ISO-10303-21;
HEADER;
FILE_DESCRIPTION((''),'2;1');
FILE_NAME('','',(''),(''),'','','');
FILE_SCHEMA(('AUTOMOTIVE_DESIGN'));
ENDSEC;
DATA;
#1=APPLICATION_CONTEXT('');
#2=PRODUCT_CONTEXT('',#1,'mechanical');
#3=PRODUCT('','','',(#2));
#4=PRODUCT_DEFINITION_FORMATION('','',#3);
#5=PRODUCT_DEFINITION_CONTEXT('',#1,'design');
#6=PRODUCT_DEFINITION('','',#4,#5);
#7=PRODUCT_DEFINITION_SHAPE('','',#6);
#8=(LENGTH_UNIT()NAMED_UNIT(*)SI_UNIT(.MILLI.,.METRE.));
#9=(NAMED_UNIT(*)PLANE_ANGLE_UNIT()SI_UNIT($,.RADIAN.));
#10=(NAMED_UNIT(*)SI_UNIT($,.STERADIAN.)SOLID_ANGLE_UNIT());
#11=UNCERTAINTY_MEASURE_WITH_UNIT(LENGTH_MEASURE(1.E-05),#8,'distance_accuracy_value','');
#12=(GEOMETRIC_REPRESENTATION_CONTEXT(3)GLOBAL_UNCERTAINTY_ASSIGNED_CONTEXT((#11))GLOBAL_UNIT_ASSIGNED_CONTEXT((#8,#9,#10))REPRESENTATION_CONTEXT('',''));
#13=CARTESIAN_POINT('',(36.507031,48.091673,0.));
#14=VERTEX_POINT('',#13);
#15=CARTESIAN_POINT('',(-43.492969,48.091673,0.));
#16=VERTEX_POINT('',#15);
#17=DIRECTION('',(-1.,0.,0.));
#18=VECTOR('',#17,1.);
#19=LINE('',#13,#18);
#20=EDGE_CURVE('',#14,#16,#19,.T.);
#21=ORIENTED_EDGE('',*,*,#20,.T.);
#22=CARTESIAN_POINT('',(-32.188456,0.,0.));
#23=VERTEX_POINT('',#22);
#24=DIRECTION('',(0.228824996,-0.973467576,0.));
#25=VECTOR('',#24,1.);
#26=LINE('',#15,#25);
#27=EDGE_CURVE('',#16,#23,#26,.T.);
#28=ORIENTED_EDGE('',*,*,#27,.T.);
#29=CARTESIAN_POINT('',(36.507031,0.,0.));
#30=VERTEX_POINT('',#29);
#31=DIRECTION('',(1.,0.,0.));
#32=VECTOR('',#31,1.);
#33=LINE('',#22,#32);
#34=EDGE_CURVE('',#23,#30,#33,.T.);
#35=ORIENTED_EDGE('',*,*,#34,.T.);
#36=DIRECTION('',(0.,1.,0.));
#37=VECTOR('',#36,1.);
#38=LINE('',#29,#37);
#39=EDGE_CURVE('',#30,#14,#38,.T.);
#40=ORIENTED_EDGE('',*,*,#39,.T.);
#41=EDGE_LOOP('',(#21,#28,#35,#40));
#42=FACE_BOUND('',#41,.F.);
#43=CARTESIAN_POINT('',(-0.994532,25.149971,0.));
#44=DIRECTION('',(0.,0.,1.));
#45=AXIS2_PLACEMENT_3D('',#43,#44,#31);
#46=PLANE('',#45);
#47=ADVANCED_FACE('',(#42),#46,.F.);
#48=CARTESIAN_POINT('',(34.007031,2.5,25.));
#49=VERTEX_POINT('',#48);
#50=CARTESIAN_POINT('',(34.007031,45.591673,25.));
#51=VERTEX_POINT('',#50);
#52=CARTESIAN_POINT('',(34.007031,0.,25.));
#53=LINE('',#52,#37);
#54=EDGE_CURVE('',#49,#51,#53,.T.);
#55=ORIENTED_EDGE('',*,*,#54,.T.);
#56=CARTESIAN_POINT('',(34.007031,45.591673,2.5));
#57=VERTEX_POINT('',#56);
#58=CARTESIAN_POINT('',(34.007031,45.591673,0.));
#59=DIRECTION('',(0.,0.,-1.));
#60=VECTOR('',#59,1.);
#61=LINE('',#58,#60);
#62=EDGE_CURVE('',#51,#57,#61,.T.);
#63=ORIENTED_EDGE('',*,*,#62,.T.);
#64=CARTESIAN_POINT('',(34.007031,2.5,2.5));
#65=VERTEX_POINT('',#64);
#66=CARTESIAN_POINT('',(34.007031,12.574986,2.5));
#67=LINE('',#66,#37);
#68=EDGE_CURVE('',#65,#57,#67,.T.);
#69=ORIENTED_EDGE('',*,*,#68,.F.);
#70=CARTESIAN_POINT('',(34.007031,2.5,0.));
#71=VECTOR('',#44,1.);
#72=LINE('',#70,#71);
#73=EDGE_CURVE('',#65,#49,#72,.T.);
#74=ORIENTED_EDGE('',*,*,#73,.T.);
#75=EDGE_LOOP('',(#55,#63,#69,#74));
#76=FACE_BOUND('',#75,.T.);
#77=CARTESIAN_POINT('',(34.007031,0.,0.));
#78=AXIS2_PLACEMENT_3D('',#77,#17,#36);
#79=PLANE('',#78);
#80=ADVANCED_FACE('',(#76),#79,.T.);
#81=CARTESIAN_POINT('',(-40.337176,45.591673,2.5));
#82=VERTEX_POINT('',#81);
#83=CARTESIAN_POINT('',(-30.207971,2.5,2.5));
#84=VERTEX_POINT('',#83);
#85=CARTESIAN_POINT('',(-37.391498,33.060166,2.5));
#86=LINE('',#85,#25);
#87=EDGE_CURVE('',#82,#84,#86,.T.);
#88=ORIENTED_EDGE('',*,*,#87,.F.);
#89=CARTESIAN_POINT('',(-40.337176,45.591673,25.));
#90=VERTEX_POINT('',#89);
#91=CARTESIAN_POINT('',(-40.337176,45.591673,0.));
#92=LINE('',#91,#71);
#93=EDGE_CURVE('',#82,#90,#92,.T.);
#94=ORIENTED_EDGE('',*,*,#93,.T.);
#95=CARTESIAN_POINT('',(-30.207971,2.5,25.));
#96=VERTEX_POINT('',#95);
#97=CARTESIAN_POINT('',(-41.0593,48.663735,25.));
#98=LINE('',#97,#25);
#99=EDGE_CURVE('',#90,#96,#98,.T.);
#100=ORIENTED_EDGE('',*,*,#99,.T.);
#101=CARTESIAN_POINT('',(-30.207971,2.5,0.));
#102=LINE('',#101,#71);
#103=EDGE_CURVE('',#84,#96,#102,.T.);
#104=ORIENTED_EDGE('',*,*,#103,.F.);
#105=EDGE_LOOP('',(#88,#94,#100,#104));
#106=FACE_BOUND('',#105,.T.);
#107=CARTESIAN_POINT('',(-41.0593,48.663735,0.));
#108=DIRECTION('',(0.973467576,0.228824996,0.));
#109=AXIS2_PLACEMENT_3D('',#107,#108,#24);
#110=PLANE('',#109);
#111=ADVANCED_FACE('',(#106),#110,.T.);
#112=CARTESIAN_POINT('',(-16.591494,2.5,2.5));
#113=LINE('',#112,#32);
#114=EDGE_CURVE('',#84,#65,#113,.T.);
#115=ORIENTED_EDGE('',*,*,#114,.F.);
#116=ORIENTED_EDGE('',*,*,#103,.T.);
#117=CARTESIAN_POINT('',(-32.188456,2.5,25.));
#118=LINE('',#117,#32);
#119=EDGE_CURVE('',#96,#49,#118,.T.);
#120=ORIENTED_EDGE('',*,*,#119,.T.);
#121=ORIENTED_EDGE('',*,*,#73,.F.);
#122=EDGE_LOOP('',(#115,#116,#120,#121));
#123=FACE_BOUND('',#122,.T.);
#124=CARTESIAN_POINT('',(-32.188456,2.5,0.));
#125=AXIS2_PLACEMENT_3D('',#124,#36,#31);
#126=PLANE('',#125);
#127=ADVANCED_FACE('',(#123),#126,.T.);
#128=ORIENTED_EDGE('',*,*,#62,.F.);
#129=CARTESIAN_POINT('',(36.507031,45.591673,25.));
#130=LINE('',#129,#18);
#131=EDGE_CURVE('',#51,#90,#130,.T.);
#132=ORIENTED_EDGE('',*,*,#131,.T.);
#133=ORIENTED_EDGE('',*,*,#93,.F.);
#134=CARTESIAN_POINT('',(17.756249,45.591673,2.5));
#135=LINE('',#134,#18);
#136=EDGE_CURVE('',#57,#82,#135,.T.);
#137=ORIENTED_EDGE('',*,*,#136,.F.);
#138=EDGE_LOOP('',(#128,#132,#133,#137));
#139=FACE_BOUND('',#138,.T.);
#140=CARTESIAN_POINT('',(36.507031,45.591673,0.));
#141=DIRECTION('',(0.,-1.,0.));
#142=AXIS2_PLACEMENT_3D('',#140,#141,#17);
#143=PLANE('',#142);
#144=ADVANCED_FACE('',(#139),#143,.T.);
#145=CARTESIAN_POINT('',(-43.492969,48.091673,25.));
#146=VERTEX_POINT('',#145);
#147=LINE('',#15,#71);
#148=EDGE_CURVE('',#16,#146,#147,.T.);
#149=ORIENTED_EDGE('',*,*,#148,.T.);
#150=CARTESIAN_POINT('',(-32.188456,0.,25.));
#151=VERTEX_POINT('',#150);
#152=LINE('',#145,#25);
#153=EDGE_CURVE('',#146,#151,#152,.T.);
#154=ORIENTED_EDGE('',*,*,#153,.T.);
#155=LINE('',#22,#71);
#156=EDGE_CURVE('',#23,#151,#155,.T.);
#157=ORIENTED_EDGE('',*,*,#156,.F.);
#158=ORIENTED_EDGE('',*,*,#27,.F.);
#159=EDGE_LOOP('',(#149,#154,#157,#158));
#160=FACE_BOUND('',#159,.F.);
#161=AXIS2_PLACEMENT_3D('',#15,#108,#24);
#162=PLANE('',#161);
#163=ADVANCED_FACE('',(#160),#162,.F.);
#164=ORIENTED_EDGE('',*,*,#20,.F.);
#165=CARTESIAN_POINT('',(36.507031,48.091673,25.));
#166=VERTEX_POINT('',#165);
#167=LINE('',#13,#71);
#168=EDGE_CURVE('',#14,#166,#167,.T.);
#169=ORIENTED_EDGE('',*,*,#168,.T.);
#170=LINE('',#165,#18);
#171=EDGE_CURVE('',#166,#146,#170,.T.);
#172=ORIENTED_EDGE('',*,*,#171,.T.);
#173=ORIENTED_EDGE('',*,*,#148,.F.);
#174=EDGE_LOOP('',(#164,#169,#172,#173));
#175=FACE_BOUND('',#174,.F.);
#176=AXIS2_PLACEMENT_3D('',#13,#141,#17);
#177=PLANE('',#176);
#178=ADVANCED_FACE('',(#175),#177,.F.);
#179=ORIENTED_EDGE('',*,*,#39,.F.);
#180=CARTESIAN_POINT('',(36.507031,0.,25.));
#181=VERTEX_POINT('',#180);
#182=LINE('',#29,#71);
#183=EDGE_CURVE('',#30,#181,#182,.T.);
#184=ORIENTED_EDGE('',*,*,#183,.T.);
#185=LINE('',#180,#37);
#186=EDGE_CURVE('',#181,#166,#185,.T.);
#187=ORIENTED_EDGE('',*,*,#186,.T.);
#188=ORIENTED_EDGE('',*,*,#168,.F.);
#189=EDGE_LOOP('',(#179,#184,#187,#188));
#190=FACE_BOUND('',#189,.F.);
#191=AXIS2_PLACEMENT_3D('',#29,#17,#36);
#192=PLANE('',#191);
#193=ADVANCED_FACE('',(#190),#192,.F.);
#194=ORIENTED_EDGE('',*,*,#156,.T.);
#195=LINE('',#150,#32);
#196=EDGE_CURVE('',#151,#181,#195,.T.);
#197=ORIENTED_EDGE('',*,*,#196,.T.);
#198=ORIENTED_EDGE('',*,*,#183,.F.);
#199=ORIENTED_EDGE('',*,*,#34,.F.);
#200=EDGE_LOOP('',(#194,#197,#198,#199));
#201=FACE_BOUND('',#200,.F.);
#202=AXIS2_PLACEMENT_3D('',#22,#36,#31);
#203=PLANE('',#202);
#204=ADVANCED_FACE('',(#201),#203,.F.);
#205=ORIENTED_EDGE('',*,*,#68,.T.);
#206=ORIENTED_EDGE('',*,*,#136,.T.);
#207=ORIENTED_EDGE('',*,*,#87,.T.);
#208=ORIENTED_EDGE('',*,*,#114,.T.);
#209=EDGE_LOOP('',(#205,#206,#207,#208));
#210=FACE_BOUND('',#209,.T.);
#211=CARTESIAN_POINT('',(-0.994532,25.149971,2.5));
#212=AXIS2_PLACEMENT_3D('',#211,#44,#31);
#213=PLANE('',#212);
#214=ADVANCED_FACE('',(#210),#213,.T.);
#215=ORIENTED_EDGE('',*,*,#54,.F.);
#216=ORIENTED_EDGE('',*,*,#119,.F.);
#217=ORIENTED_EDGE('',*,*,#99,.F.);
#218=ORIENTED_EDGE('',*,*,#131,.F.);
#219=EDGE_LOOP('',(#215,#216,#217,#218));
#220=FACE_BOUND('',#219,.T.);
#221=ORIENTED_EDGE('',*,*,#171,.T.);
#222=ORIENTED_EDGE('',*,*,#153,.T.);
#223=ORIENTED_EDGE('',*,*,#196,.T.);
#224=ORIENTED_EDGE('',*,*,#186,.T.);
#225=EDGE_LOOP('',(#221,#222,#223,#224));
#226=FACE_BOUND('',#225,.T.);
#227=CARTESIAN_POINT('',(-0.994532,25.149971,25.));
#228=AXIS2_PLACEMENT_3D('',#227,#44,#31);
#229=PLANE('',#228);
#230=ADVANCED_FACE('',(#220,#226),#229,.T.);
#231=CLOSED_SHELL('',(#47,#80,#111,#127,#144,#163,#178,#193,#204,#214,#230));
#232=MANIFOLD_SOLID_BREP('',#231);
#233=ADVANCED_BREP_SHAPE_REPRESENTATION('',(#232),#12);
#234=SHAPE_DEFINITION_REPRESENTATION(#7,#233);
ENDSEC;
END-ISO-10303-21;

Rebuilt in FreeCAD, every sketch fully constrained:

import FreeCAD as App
import Part
import Sketcher


def faces_at(feature, points):
    """Names of the faces that lie closest to the given points."""
    faces = feature.Shape.Faces
    near = lambda p: min(range(len(faces)), key=lambda i: faces[i].distToShape(Part.Vertex(*p))[0])
    return sorted({f"Face{near(p) + 1}" for p in points})

doc = App.newDocument("Part")
params = doc.addObject("Spreadsheet::Sheet", "Params")
for row, (alias, value) in enumerate([
    ("sketch1_width", "80 mm"),
    ("pad1_length", "25 mm"),
    ("thickness_wall", "2.5 mm"),
], start=1):
    params.set(f"A{row}", alias)
    params.set(f"B{row}", "=" + value)
    params.setAlias(f"B{row}", alias)

body = doc.addObject("PartDesign::Body", "Body")

# Sketch on XY plane
sketch1 = body.newObject("Sketcher::SketchObject", "Sketch")
sketch1.AttachmentSupport = (doc.getObject("XY_Plane"), [""])
sketch1.MapMode = "FlatFace"
sketch1.addGeometry([
    Part.LineSegment(App.Vector(37, 48, 0), App.Vector(-43, 48, 0)),
    Part.LineSegment(App.Vector(-43, 48, 0), App.Vector(-32, 0, 0)),
    Part.LineSegment(App.Vector(-32, 0, 0), App.Vector(37, 0, 0)),
    Part.LineSegment(App.Vector(37, 0, 0), App.Vector(37, 48, 0)),
], False)
sketch1.addConstraint([
    Sketcher.Constraint("Coincident", 0, 2, 1, 1),
    Sketcher.Constraint("Coincident", 1, 2, 2, 1),
    Sketcher.Constraint("Coincident", 2, 2, 3, 1),
    Sketcher.Constraint("Coincident", 3, 2, 0, 1),
    Sketcher.Constraint("Horizontal", 0),
    Sketcher.Constraint("Horizontal", 2),
    Sketcher.Constraint("Vertical", 3),
    Sketcher.Constraint("PointOnObject", 1, 2, -1),
    Sketcher.Constraint("DistanceX", 0, 2, 0, 1, 80.0),
    Sketcher.Constraint("Distance", 1, 49.402439),
    Sketcher.Constraint("DistanceX", 2, 1, 2, 2, 68.695487),
    Sketcher.Constraint("DistanceX", 0, 2, -1, 1, 43.492969),
])
sketch1.setExpression("Constraints[8]", "Params.sketch1_width")
pad1 = body.newObject("PartDesign::Pad", "Pad")
pad1.Profile = sketch1
pad1.setExpression("Length", "Params.pad1_length")
doc.recompute()

thickness = body.newObject("PartDesign::Thickness", "Thickness")
thickness.Base = (pad1, faces_at(pad1, [(-3.493, 24.046, 25)]))
thickness.setExpression("Value", "Params.thickness_wall")
thickness.Reversed = True
thickness.Join = "Arc"

doc.recompute()
